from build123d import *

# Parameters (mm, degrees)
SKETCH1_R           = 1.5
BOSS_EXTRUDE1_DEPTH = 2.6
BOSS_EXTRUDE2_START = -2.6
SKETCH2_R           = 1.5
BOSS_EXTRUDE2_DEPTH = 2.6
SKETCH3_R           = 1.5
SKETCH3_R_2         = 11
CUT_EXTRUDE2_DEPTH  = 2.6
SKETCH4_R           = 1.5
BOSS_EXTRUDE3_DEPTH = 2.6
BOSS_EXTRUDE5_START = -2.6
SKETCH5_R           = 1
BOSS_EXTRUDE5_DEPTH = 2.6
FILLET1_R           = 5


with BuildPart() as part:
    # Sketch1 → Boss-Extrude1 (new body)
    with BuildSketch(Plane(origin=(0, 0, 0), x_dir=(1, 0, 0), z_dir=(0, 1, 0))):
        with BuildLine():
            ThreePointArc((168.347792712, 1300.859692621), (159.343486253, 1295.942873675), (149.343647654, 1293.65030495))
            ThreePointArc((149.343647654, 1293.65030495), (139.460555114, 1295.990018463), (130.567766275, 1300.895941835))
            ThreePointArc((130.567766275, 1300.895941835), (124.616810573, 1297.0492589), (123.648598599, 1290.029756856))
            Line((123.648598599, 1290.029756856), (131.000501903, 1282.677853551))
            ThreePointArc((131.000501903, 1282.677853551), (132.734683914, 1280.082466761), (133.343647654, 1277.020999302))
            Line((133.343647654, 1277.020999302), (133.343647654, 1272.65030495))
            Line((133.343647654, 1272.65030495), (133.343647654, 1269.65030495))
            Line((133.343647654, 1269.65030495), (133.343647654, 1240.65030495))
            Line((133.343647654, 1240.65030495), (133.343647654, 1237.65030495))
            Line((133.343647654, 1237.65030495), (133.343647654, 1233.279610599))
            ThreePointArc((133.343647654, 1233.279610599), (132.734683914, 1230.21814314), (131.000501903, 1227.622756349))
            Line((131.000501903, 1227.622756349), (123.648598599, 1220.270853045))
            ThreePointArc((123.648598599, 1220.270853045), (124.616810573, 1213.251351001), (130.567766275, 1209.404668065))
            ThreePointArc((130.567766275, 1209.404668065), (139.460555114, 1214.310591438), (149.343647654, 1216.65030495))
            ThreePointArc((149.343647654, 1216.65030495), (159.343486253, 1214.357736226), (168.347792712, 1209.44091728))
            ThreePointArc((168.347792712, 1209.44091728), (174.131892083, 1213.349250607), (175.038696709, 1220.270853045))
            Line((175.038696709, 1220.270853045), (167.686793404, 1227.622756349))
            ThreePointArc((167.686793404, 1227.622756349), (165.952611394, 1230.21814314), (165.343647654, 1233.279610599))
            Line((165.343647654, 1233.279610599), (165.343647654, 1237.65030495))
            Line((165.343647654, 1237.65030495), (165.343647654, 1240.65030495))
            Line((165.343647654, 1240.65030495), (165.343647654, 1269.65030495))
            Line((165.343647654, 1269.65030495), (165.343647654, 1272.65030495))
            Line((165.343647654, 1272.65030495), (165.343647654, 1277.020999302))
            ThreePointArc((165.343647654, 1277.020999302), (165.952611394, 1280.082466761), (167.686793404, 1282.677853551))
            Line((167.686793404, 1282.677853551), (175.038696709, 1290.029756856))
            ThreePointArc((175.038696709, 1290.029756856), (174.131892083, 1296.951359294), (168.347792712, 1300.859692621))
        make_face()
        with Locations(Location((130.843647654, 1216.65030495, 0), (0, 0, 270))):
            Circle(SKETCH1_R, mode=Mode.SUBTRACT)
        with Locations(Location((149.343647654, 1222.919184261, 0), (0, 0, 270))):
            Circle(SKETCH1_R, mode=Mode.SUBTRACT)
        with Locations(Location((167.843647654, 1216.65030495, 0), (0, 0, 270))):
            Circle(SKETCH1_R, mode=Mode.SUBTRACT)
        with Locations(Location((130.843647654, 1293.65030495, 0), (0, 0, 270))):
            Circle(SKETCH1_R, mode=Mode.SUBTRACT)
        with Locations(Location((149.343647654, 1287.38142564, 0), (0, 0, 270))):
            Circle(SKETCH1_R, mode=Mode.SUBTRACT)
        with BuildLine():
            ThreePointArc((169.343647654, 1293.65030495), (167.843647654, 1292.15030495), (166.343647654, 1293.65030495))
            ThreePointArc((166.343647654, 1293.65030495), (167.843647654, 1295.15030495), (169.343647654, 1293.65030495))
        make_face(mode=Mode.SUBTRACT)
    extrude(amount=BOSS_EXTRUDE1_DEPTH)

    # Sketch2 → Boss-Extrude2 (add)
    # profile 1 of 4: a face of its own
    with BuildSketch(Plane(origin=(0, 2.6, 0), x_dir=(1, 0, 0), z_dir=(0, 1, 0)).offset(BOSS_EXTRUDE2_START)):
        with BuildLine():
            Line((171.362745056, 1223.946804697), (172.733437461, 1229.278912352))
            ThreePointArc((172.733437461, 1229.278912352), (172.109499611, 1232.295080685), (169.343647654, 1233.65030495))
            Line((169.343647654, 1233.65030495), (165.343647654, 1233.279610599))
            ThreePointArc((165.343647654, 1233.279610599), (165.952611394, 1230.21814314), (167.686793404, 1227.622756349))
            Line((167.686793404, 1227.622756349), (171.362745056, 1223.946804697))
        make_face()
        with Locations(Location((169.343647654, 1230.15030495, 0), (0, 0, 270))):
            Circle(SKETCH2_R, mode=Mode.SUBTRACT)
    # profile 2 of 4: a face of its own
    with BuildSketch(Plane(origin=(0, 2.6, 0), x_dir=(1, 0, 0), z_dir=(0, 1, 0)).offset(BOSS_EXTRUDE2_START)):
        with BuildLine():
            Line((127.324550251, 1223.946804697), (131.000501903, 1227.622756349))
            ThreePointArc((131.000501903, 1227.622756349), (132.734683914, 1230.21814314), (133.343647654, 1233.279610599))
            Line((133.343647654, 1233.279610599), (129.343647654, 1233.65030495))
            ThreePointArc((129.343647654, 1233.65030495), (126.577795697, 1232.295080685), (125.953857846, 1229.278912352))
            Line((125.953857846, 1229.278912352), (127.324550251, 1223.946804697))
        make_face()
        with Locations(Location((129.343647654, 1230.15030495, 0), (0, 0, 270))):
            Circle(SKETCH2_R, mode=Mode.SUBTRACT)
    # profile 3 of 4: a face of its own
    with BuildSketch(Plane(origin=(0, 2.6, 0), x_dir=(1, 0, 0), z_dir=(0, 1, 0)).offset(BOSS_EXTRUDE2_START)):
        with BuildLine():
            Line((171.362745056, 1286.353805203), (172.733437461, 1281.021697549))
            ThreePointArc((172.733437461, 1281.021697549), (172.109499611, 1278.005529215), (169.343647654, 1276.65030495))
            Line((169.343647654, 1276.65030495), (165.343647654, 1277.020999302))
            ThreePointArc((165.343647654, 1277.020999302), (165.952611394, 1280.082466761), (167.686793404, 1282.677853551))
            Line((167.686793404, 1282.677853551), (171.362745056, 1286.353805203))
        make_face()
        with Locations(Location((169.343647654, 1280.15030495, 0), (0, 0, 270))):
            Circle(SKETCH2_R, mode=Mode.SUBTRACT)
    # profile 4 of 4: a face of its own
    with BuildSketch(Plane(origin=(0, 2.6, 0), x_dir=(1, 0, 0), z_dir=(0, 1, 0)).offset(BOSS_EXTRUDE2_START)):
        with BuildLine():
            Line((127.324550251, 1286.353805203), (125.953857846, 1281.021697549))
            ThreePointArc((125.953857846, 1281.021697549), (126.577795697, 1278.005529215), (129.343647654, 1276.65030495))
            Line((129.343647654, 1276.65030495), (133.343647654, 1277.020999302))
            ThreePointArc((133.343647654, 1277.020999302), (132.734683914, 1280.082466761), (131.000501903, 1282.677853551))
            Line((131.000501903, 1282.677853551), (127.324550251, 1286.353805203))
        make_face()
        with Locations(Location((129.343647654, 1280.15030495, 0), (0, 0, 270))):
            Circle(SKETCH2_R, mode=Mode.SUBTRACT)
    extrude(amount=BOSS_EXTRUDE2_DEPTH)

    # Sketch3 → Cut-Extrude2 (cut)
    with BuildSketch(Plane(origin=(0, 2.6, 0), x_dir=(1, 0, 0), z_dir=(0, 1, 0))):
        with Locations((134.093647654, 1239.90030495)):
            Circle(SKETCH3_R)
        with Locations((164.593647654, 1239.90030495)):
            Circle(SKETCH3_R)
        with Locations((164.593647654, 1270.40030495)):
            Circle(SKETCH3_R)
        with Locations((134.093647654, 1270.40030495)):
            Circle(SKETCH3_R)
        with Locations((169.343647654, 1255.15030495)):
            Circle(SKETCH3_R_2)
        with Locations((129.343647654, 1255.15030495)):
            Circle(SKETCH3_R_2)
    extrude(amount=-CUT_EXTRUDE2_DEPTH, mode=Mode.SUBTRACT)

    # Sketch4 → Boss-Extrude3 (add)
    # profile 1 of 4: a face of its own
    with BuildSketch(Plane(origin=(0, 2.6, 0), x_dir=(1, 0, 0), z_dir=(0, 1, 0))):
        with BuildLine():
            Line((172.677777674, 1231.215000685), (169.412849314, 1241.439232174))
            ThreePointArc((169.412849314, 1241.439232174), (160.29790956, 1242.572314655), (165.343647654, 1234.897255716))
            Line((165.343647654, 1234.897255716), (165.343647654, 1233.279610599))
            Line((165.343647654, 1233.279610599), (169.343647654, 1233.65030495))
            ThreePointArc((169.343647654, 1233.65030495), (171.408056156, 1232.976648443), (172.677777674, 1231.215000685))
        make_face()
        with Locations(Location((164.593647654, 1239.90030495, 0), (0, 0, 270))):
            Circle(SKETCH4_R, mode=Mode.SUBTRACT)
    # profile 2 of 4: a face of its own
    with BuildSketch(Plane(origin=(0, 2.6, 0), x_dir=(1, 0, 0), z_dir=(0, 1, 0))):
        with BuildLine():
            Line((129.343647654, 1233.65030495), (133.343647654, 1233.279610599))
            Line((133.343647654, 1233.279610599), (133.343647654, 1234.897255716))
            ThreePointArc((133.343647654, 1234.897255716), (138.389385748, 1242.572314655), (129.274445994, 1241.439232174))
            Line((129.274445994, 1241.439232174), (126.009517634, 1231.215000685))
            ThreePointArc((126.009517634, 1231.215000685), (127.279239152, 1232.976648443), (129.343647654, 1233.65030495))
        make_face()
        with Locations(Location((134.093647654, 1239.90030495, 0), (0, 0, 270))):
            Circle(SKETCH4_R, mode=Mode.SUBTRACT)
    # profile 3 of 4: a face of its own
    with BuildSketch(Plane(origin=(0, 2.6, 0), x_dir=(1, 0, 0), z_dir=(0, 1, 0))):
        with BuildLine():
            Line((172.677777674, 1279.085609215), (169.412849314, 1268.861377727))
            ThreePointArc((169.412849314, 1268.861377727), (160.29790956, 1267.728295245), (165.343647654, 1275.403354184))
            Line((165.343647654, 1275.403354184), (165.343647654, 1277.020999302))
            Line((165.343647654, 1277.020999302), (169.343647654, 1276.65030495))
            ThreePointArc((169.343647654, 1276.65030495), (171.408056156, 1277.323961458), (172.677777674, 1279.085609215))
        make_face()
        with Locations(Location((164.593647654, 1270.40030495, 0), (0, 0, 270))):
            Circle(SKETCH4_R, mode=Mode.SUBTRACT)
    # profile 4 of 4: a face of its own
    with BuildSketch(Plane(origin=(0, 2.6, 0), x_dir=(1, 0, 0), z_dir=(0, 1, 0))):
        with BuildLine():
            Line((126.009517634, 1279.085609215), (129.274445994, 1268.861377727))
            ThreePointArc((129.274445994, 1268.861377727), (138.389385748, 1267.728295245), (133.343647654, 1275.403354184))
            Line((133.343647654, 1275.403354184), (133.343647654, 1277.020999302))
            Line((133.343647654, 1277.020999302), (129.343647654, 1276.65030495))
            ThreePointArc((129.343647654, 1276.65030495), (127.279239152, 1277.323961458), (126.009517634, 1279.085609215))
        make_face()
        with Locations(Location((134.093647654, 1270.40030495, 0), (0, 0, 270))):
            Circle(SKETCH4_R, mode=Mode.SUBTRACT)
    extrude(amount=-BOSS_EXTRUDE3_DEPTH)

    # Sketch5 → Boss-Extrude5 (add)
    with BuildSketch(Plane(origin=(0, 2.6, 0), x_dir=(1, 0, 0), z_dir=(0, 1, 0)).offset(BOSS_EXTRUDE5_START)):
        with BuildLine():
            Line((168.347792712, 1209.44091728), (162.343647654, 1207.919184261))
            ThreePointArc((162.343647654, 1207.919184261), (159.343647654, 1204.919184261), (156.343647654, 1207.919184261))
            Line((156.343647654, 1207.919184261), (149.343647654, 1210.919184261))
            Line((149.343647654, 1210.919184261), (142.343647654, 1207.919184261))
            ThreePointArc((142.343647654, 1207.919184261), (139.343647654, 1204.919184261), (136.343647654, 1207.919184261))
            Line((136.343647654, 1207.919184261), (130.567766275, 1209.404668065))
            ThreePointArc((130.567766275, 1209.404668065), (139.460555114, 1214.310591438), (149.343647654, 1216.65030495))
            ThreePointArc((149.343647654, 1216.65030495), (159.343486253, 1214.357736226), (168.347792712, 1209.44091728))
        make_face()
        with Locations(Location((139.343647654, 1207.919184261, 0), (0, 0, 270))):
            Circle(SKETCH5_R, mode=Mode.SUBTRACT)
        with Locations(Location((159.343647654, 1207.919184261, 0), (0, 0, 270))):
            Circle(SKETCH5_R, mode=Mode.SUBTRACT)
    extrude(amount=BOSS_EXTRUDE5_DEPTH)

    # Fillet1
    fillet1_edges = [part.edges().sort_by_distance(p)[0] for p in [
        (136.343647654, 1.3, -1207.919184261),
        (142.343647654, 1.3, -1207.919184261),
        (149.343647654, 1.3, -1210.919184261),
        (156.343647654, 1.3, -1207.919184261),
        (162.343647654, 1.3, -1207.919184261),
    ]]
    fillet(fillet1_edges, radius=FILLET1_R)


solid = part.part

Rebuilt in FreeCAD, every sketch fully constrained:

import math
import FreeCAD as App
import Part
import Sketcher

V = App.Vector


def edges_at(feature, points):
    """Names of the edges that pass closest to the given points."""
    edges = feature.Shape.Edges
    near = lambda p: min(range(len(edges)), key=lambda i: edges[i].distToShape(Part.Vertex(*p))[0])
    return sorted({f"Edge{near(p) + 1}" for p in points})

doc = App.newDocument("Part")
body = doc.addObject("PartDesign::Body", "Body")

sketch1 = body.newObject("Sketcher::SketchObject", "Sketch")
sketch1.AttachmentSupport = (doc.getObject("XZ_Plane"), [""])
sketch1.MapMode = "FlatFace"
sketch1.addGeometry([
    Part.ArcOfCircle(Part.Circle(V(146, -1331, 0), V(0, 0, 1), 37.5), math.radians(54), math.radians(85)),
    Part.ArcOfCircle(Part.Circle(V(153, -1331, 0), V(0, 0, 1), 37.5), math.radians(96), math.radians(127)),
    Part.ArcOfCircle(Part.Circle(V(131.8, -1292.5, 0), V(0, 0, 1), 8.5), math.radians(163), math.radians(262)),
    Part.LineSegment(V(123.6, -1290, 0), V(131, -1282.7, 0)),
    Part.ArcOfCircle(Part.Circle(V(125.3, -1277, 0), V(0, 0, 1), 8), math.radians(-45), math.radians(0)),
    Part.LineSegment(V(133.3, -1277, 0), V(133.3, -1233.3, 0)),
    Part.ArcOfCircle(Part.Circle(V(125.3, -1233.3, 0), V(0, 0, 1), 8), math.radians(0), math.radians(45)),
    Part.LineSegment(V(131, -1227.6, 0), V(123.6, -1220.3, 0)),
    Part.ArcOfCircle(Part.Circle(V(131.8, -1217.8, 0), V(0, 0, 1), 8.5), math.radians(98), math.radians(197)),
    Part.ArcOfCircle(Part.Circle(V(153, -1179.3, 0), V(0, 0, 1), 37.5), math.radians(-127), math.radians(-96)),
    Part.ArcOfCircle(Part.Circle(V(146, -1179.3, 0), V(0, 0, 1), 37.5), math.radians(-85), math.radians(-54)),
    Part.ArcOfCircle(Part.Circle(V(166.9, -1217.8, 0), V(0, 0, 1), 8.5), math.radians(-17), math.radians(80)),
    Part.LineSegment(V(175, -1220.3, 0), V(167.7, -1227.6, 0)),
    Part.ArcOfCircle(Part.Circle(V(173.3, -1233.3, 0), V(0, 0, 1), 8), math.radians(135), math.radians(180)),
    Part.LineSegment(V(165.3, -1233.3, 0), V(165.3, -1277, 0)),
    Part.ArcOfCircle(Part.Circle(V(173.3, -1277, 0), V(0, 0, 1), 8), math.radians(180), math.radians(225)),
    Part.LineSegment(V(167.7, -1282.7, 0), V(175, -1290, 0)),
    Part.ArcOfCircle(Part.Circle(V(166.9, -1292.5, 0), V(0, 0, 1), 8.5), math.radians(-80), math.radians(17)),
    Part.Circle(V(130.8, -1216.7, 0), V(0, 0, 1), 1.5),
    Part.Circle(V(149.3, -1222.9, 0), V(0, 0, 1), 1.5),
    Part.Circle(V(167.8, -1216.7, 0), V(0, 0, 1), 1.5),
    Part.Circle(V(130.8, -1293.7, 0), V(0, 0, 1), 1.5),
    Part.Circle(V(149.3, -1287.4, 0), V(0, 0, 1), 1.5),
    Part.Circle(V(167.8, -1293.7, 0), V(0, 0, 1), 1.5),
], False)
sketch1.addConstraint([
    Sketcher.Constraint("Coincident", 0, 2, 1, 1),
    Sketcher.Constraint("Coincident", 1, 2, 2, 2),
    Sketcher.Constraint("Coincident", 2, 1, 3, 1),
    Sketcher.Constraint("Tangent", 3, 2, 4, 1),
    Sketcher.Constraint("Tangent", 4, 2, 5, 1),
    Sketcher.Constraint("Tangent", 5, 2, 6, 1),
    Sketcher.Constraint("Tangent", 6, 2, 7, 1),
    Sketcher.Constraint("Coincident", 7, 2, 8, 2),
    Sketcher.Constraint("Coincident", 8, 1, 9, 1),
    Sketcher.Constraint("Coincident", 9, 2, 10, 1),
    Sketcher.Constraint("Coincident", 10, 2, 11, 2),
    Sketcher.Constraint("Coincident", 11, 1, 12, 1),
    Sketcher.Constraint("Tangent", 12, 2, 13, 1),
    Sketcher.Constraint("Tangent", 13, 2, 14, 1),
    Sketcher.Constraint("Tangent", 14, 2, 15, 1),
    Sketcher.Constraint("Tangent", 15, 2, 16, 1),
    Sketcher.Constraint("Coincident", 16, 2, 17, 2),
    Sketcher.Constraint("Coincident", 17, 1, 0, 1),
    Sketcher.Constraint("Vertical", 5),
    Sketcher.Constraint("Vertical", 14),
    Sketcher.Constraint("Equal", 0, 1),
    Sketcher.Constraint("Equal", 4, 6),
    Sketcher.Constraint("Equal", 2, 8),
    Sketcher.Constraint("Equal", 1, 9),
    Sketcher.Constraint("Equal", 9, 10),
    Sketcher.Constraint("Equal", 8, 11),
    Sketcher.Constraint("Equal", 6, 13),
    Sketcher.Constraint("Equal", 13, 15),
    Sketcher.Constraint("Equal", 11, 17),
    Sketcher.Constraint("Equal", 18, 19),
    Sketcher.Constraint("Equal", 19, 20),
    Sketcher.Constraint("Equal", 20, 21),
    Sketcher.Constraint("Equal", 21, 22),
    Sketcher.Constraint("Equal", 22, 23),
    Sketcher.Constraint("Perpendicular", 3, 7),
    Sketcher.Constraint("Perpendicular", 7, 12),
    Sketcher.Constraint("Perpendicular", 12, 16),
    Sketcher.Constraint("Horizontal", 8, 3, 11, 3),
    Sketcher.Constraint("Horizontal", 6, 3, 13, 3),
    Sketcher.Constraint("Horizontal", 4, 3, 15, 3),
    Sketcher.Constraint("Horizontal", 2, 3, 17, 3),
    Sketcher.Constraint("Horizontal", 18, 3, 20, 3),
    Sketcher.Constraint("Horizontal", 21, 3, 23, 3),
    Sketcher.Constraint("Horizontal", 23, 3, 0, 2),
    Sketcher.Constraint("Horizontal", 20, 3, 9, 2),
    Sketcher.Constraint("Horizontal", 7, 2, 11, 1),
    Sketcher.Constraint("Horizontal", 6, 2, 12, 2),
    Sketcher.Constraint("Horizontal", 2, 1, 16, 2),
    Sketcher.Constraint("Vertical", 2, 3, 8, 3),
    Sketcher.Constraint("Vertical", 1, 3, 9, 3),
    Sketcher.Constraint("Vertical", 0, 3, 10, 3),
    Sketcher.Constraint("Vertical", 18, 3, 21, 3),
    Sketcher.Constraint("Vertical", 19, 3, 22, 3),
    Sketcher.Constraint("Vertical", 20, 3, 23, 3),
    Sketcher.Constraint("Vertical", 22, 3, 0, 2),
    Sketcher.Constraint("Vertical", 2, 1, 7, 2),
    Sketcher.Constraint("Vertical", 1, 2, 8, 1),
    Sketcher.Constraint("Vertical", 0, 2, 9, 2),
    Sketcher.Constraint("Diameter", 18, 3.0),
    Sketcher.Constraint("Radius", 4, 8.0),
    Sketcher.Constraint("Radius", 0, 37.5),
    Sketcher.Constraint("Radius", 2, 8.5),
    Sketcher.Constraint("DistanceX", 6, 3, 13, 3, 48.0),
    Sketcher.Constraint("DistanceX", 6, 3, 19, 3, 24.0),
    Sketcher.Constraint("DistanceX", 18, 3, 20, 3, 37.0),
    Sketcher.Constraint("DistanceX", 6, 3, 18, 3, 5.5),
    Sketcher.Constraint("DistanceY", 4, 3, -1, 1, 1277.020999),
    Sketcher.Constraint("DistanceX", 12, 2, 10, 2, 0.660999),
    Sketcher.Constraint("DistanceY", 5, 1, 5, 2, 43.741389),
    Sketcher.Constraint("DistanceX", -1, 1, 2, 1, 123.648599),
    Sketcher.Constraint("DistanceX", -1, 1, 3, 2, 131.000502),
    Sketcher.Constraint("DistanceX", 9, 3, 11, 3, 13.939202),
    Sketcher.Constraint("DistanceX", -1, 1, 0, 3, 146.04247),
    Sketcher.Constraint("DistanceY", 0, 3, -1, 1, 1331.004719),
    Sketcher.Constraint("DistanceY", 19, 3, 8, 3, 5.102362),
    Sketcher.Constraint("DistanceY", 2, 3, 22, 3, 5.102362),
])
pad1 = body.newObject("PartDesign::Pad", "Pad")
pad1.Profile = sketch1
pad1.Length = 2.6
pad1.Reversed = True

sketch2 = body.newObject("Sketcher::SketchObject", "Sketch001")
sketch2.AttachmentSupport = (doc.getObject("XZ_Plane"), [""])
sketch2.MapMode = "FlatFace"
sketch2.addGeometry([
    Part.LineSegment(V(171.4, -1223.9, 0), V(172.7, -1229.3, 0)),
    Part.ArcOfCircle(Part.Circle(V(169.3, -1230.2, 0), V(0, 0, 1), 3.5), math.radians(-90), math.radians(14)),
    Part.LineSegment(V(169.3, -1233.7, 0), V(165.3, -1233.3, 0)),
    Part.ArcOfCircle(Part.Circle(V(173.3, -1233.3, 0), V(0, 0, 1), 8), math.radians(135), math.radians(180)),
    Part.LineSegment(V(167.7, -1227.6, 0), V(171.4, -1223.9, 0)),
    Part.Circle(V(169.3, -1230.2, 0), V(0, 0, 1), 1.5),
    Part.LineSegment(V(127.3, -1223.9, 0), V(131, -1227.6, 0)),
    Part.ArcOfCircle(Part.Circle(V(125.3, -1233.3, 0), V(0, 0, 1), 8), math.radians(0), math.radians(45)),
    Part.LineSegment(V(133.3, -1233.3, 0), V(129.3, -1233.7, 0)),
    Part.ArcOfCircle(Part.Circle(V(129.3, -1230.2, 0), V(0, 0, 1), 3.5), math.radians(166), math.radians(270)),
    Part.LineSegment(V(126, -1229.3, 0), V(127.3, -1223.9, 0)),
    Part.Circle(V(129.3, -1230.2, 0), V(0, 0, 1), 1.5),
    Part.LineSegment(V(172.7, -1281, 0), V(171.4, -1286.4, 0)),
    Part.LineSegment(V(171.4, -1286.4, 0), V(167.7, -1282.7, 0)),
    Part.ArcOfCircle(Part.Circle(V(173.3, -1277, 0), V(0, 0, 1), 8), math.radians(180), math.radians(225)),
    Part.LineSegment(V(165.3, -1277, 0), V(169.3, -1276.7, 0)),
    Part.ArcOfCircle(Part.Circle(V(169.3, -1280.2, 0), V(0, 0, 1), 3.5), math.radians(-14), math.radians(90)),
    Part.Circle(V(169.3, -1280.2, 0), V(0, 0, 1), 1.5),
    Part.LineSegment(V(127.3, -1286.4, 0), V(126, -1281, 0)),
    Part.ArcOfCircle(Part.Circle(V(129.3, -1280.2, 0), V(0, 0, 1), 3.5), math.radians(90), math.radians(194)),
    Part.LineSegment(V(129.3, -1276.7, 0), V(133.3, -1277, 0)),
    Part.ArcOfCircle(Part.Circle(V(125.3, -1277, 0), V(0, 0, 1), 8), math.radians(-45), math.radians(0)),
    Part.LineSegment(V(131, -1282.7, 0), V(127.3, -1286.4, 0)),
    Part.Circle(V(129.3, -1280.2, 0), V(0, 0, 1), 1.5),
], False)
sketch2.addConstraint([
    Sketcher.Constraint("Tangent", 0, 2, 1, 2),
    Sketcher.Constraint("Coincident", 1, 1, 2, 1),
    Sketcher.Constraint("Coincident", 2, 2, 3, 2),
    Sketcher.Constraint("Tangent", 3, 1, 4, 1),
    Sketcher.Constraint("Coincident", 4, 2, 0, 1),
    Sketcher.Constraint("Tangent", 6, 2, 7, 2),
    Sketcher.Constraint("Coincident", 7, 1, 8, 1),
    Sketcher.Constraint("Coincident", 8, 2, 9, 2),
    Sketcher.Constraint("Tangent", 9, 1, 10, 1),
    Sketcher.Constraint("Coincident", 10, 2, 6, 1),
    Sketcher.Constraint("Coincident", 12, 2, 13, 1),
    Sketcher.Constraint("Tangent", 13, 2, 14, 2),
    Sketcher.Constraint("Coincident", 14, 1, 15, 1),
    Sketcher.Constraint("Coincident", 15, 2, 16, 2),
    Sketcher.Constraint("Tangent", 16, 1, 12, 1),
    Sketcher.Constraint("Tangent", 18, 2, 19, 2),
    Sketcher.Constraint("Coincident", 19, 1, 20, 1),
    Sketcher.Constraint("Coincident", 20, 2, 21, 2),
    Sketcher.Constraint("Tangent", 21, 1, 22, 1),
    Sketcher.Constraint("Coincident", 22, 2, 18, 1),
    Sketcher.Constraint("Coincident", 5, 3, 1, 3),
    Sketcher.Constraint("Coincident", 11, 3, 9, 3),
    Sketcher.Constraint("Coincident", 17, 3, 16, 3),
    Sketcher.Constraint("Coincident", 23, 3, 19, 3),
    Sketcher.Constraint("Equal", 3, 7),
    Sketcher.Constraint("Equal", 1, 9),
    Sketcher.Constraint("Equal", 5, 11),
    Sketcher.Constraint("Equal", 7, 14),
    Sketcher.Constraint("Equal", 9, 16),
    Sketcher.Constraint("Equal", 11, 17),
    Sketcher.Constraint("Equal", 16, 19),
    Sketcher.Constraint("Equal", 14, 21),
    Sketcher.Constraint("Equal", 17, 23),
    Sketcher.Constraint("Perpendicular", 4, 6),
    Sketcher.Constraint("Parallel", 10, 12),
    Sketcher.Constraint("Parallel", 6, 13),
    Sketcher.Constraint("Parallel", 8, 15),
    Sketcher.Constraint("Parallel", 0, 18),
    Sketcher.Constraint("Parallel", 2, 20),
    Sketcher.Constraint("Perpendicular", 13, 22),
    Sketcher.Constraint("Horizontal", 3, 3, 7, 3),
    Sketcher.Constraint("Horizontal", 5, 3, 9, 3),
    Sketcher.Constraint("Horizontal", 17, 3, 19, 3),
    Sketcher.Constraint("Horizontal", 14, 3, 21, 3),
    Sketcher.Constraint("Horizontal", 7, 3, 2, 2),
    Sketcher.Constraint("Horizontal", 3, 1, 6, 2),
    Sketcher.Constraint("Horizontal", 2, 2, 7, 1),
    Sketcher.Constraint("Horizontal", 0, 2, 9, 1),
    Sketcher.Constraint("Horizontal", 4, 2, 10, 2),
    Sketcher.Constraint("Horizontal", 21, 3, 14, 1),
    Sketcher.Constraint("Horizontal", 14, 1, 20, 2),
    Sketcher.Constraint("Horizontal", 12, 2, 22, 2),
    Sketcher.Constraint("Vertical", 3, 3, 14, 3),
    Sketcher.Constraint("Vertical", 5, 3, 16, 3),
    Sketcher.Constraint("Vertical", 11, 3, 19, 3),
    Sketcher.Constraint("Vertical", 17, 3, 1, 1),
    Sketcher.Constraint("Vertical", 23, 3, 8, 2),
    Sketcher.Constraint("Vertical", 4, 2, 12, 2),
    Sketcher.Constraint("Diameter", 5, 3.0),
    Sketcher.Constraint("Radius", 3, 8.0),
    Sketcher.Constraint("Radius", 1, 3.5),
    Sketcher.Constraint("DistanceX", 1, 3, 3, 3, 4.0),
    Sketcher.Constraint("DistanceX", 7, 3, 5, 3, 44.0),
    Sketcher.Constraint("DistanceY", 16, 3, 1, 3, 50.0),
    Sketcher.Constraint("DistanceY", 14, 3, -1, 1, 1277.020999),
    Sketcher.Constraint("DistanceX", -1, 1, 6, 2, 131.000502),
    Sketcher.Constraint("DistanceY", 3, 3, 0, 2, 4.000698),
    Sketcher.Constraint("DistanceY", 5, 3, 4, 2, 6.2035),
])
pad2 = body.newObject("PartDesign::Pad", "Pad001")
pad2.Profile = sketch2
pad2.Length = 2.6
pad2.Reversed = True

sketch3 = body.newObject("Sketcher::SketchObject", "Sketch002")
sketch3.AttachmentSupport = (doc.getObject("XZ_Plane"), [""])
sketch3.MapMode = "FlatFace"
sketch3.AttachmentOffset = App.Placement(V(0, 0, -2.6), App.Rotation())
sketch3.addGeometry([
    Part.Circle(V(134.1, -1239.9, 0), V(0, 0, 1), 1.5),
    Part.Circle(V(164.6, -1239.9, 0), V(0, 0, 1), 1.5),
    Part.Circle(V(164.6, -1270.4, 0), V(0, 0, 1), 1.5),
    Part.Circle(V(134.1, -1270.4, 0), V(0, 0, 1), 1.5),
    Part.Circle(V(169.3, -1255.2, 0), V(0, 0, 1), 11),
    Part.Circle(V(129.3, -1255.2, 0), V(0, 0, 1), 11),
], False)
sketch3.addConstraint([
    Sketcher.Constraint("Equal", 0, 1),
    Sketcher.Constraint("Equal", 1, 2),
    Sketcher.Constraint("Equal", 2, 3),
    Sketcher.Constraint("Equal", 4, 5),
    Sketcher.Constraint("Horizontal", 0, 3, 1, 3),
    Sketcher.Constraint("Horizontal", 2, 3, 3, 3),
    Sketcher.Constraint("Horizontal", 4, 3, 5, 3),
    Sketcher.Constraint("Vertical", 1, 3, 2, 3),
    Sketcher.Constraint("Vertical", 0, 3, 3, 3),
    Sketcher.Constraint("Diameter", 0, 3.0),
    Sketcher.Constraint("Diameter", 4, 22.0),
    Sketcher.Constraint("DistanceX", 5, 3, 4, 3, 40.0),
    Sketcher.Constraint("DistanceX", 0, 3, 1, 3, 30.5),
    Sketcher.Constraint("DistanceY", 2, 3, 1, 3, 30.5),
    Sketcher.Constraint("DistanceX", 1, 3, 4, 3, 4.75),
    Sketcher.Constraint("DistanceY", 4, 3, 1, 3, 15.25),
    Sketcher.Constraint("DistanceX", -1, 1, 0, 3, 134.093648),
    Sketcher.Constraint("DistanceY", 0, 3, -1, 1, 1239.900305),
])
pocket1 = body.newObject("PartDesign::Pocket", "Pocket")
pocket1.Profile = sketch3
pocket1.Length = 2.6
pocket1.Reversed = True

sketch4 = body.newObject("Sketcher::SketchObject", "Sketch003")
sketch4.AttachmentSupport = (doc.getObject("XZ_Plane"), [""])
sketch4.MapMode = "FlatFace"
sketch4.AttachmentOffset = App.Placement(V(0, 0, -2.6), App.Rotation())
sketch4.addGeometry([
    Part.LineSegment(V(172.7, -1231.2, 0), V(169.4, -1241.4, 0)),
    Part.ArcOfCircle(Part.Circle(V(164.6, -1239.9, 0), V(0, 0, 1), 5.1), math.radians(81), math.radians(342)),
    Part.LineSegment(V(165.3, -1234.9, 0), V(165.3, -1233.3, 0)),
    Part.LineSegment(V(165.3, -1233.3, 0), V(169.3, -1233.7, 0)),
    Part.ArcOfCircle(Part.Circle(V(169.3, -1230.2, 0), V(0, 0, 1), 3.5), math.radians(-90), math.radians(-18)),
    Part.Circle(V(164.6, -1239.9, 0), V(0, 0, 1), 1.5),
    Part.LineSegment(V(129.3, -1233.7, 0), V(133.3, -1233.3, 0)),
    Part.LineSegment(V(133.3, -1233.3, 0), V(133.3, -1234.9, 0)),
    Part.ArcOfCircle(Part.Circle(V(134.1, -1239.9, 0), V(0, 0, 1), 5.1), math.radians(-162), math.radians(99)),
    Part.LineSegment(V(129.3, -1241.4, 0), V(126, -1231.2, 0)),
    Part.ArcOfCircle(Part.Circle(V(129.3, -1230.2, 0), V(0, 0, 1), 3.5), math.radians(-162), math.radians(-90)),
    Part.Circle(V(134.1, -1239.9, 0), V(0, 0, 1), 1.5),
    Part.LineSegment(V(169.4, -1268.9, 0), V(172.7, -1279.1, 0)),
    Part.ArcOfCircle(Part.Circle(V(169.3, -1280.2, 0), V(0, 0, 1), 3.5), math.radians(18), math.radians(90)),
    Part.LineSegment(V(169.3, -1276.7, 0), V(165.3, -1277, 0)),
    Part.LineSegment(V(165.3, -1277, 0), V(165.3, -1275.4, 0)),
    Part.ArcOfCircle(Part.Circle(V(164.6, -1270.4, 0), V(0, 0, 1), 5.1), math.radians(18), math.radians(279)),
    Part.Circle(V(164.6, -1270.4, 0), V(0, 0, 1), 1.5),
    Part.LineSegment(V(126, -1279.1, 0), V(129.3, -1268.9, 0)),
    Part.ArcOfCircle(Part.Circle(V(134.1, -1270.4, 0), V(0, 0, 1), 5.1), math.radians(-99), math.radians(162)),
    Part.LineSegment(V(133.3, -1275.4, 0), V(133.3, -1277, 0)),
    Part.LineSegment(V(133.3, -1277, 0), V(129.3, -1276.7, 0)),
    Part.ArcOfCircle(Part.Circle(V(129.3, -1280.2, 0), V(0, 0, 1), 3.5), math.radians(90), math.radians(162)),
    Part.Circle(V(134.1, -1270.4, 0), V(0, 0, 1), 1.5),
], False)
sketch4.addConstraint([
    Sketcher.Constraint("Tangent", 0, 2, 1, 2),
    Sketcher.Constraint("Coincident", 1, 1, 2, 1),
    Sketcher.Constraint("Coincident", 2, 2, 3, 1),
    Sketcher.Constraint("Coincident", 3, 2, 4, 1),
    Sketcher.Constraint("Tangent", 4, 2, 0, 1),
    Sketcher.Constraint("Coincident", 6, 2, 7, 1),
    Sketcher.Constraint("Coincident", 7, 2, 8, 2),
    Sketcher.Constraint("Tangent", 8, 1, 9, 1),
    Sketcher.Constraint("Tangent", 9, 2, 10, 1),
    Sketcher.Constraint("Coincident", 10, 2, 6, 1),
    Sketcher.Constraint("Tangent", 12, 2, 13, 1),
    Sketcher.Constraint("Coincident", 13, 2, 14, 1),
    Sketcher.Constraint("Coincident", 14, 2, 15, 1),
    Sketcher.Constraint("Coincident", 15, 2, 16, 2),
    Sketcher.Constraint("Tangent", 16, 1, 12, 1),
    Sketcher.Constraint("Tangent", 18, 2, 19, 2),
    Sketcher.Constraint("Coincident", 19, 1, 20, 1),
    Sketcher.Constraint("Coincident", 20, 2, 21, 1),
    Sketcher.Constraint("Coincident", 21, 2, 22, 1),
    Sketcher.Constraint("Tangent", 22, 2, 18, 1),
    Sketcher.Constraint("Vertical", 2),
    Sketcher.Constraint("Vertical", 7),
    Sketcher.Constraint("Vertical", 15),
    Sketcher.Constraint("Vertical", 20),
    Sketcher.Constraint("Coincident", 5, 3, 1, 3),
    Sketcher.Constraint("Coincident", 11, 3, 8, 3),
    Sketcher.Constraint("Coincident", 17, 3, 16, 3),
    Sketcher.Constraint("Coincident", 23, 3, 19, 3),
    Sketcher.Constraint("Equal", 1, 8),
    Sketcher.Constraint("Equal", 4, 10),
    Sketcher.Constraint("Equal", 5, 11),
    Sketcher.Constraint("Equal", 10, 13),
    Sketcher.Constraint("Equal", 8, 16),
    Sketcher.Constraint("Equal", 11, 17),
    Sketcher.Constraint("Equal", 16, 19),
    Sketcher.Constraint("Equal", 13, 22),
    Sketcher.Constraint("Equal", 17, 23),
    Sketcher.Constraint("Parallel", 9, 12),
    Sketcher.Constraint("Parallel", 6, 14),
    Sketcher.Constraint("Parallel", 0, 18),
    Sketcher.Constraint("Parallel", 3, 21),
    Sketcher.Constraint("Horizontal", 5, 3, 8, 3),
    Sketcher.Constraint("Horizontal", 4, 3, 10, 3),
    Sketcher.Constraint("Horizontal", 17, 3, 19, 3),
    Sketcher.Constraint("Horizontal", 13, 3, 22, 3),
    Sketcher.Constraint("Horizontal", 2, 2, 6, 2),
    Sketcher.Constraint("Horizontal", 1, 1, 7, 2),
    Sketcher.Constraint("Horizontal", 0, 2, 8, 1),
    Sketcher.Constraint("Horizontal", 15, 2, 19, 1),
    Sketcher.Constraint("Horizontal", 14, 2, 20, 2),
    Sketcher.Constraint("Vertical", 4, 3, 13, 3),
    Sketcher.Constraint("Vertical", 5, 3, 16, 3),
    Sketcher.Constraint("Vertical", 11, 3, 19, 3),
    Sketcher.Constraint("Vertical", 13, 3, 3, 2),
    Sketcher.Constraint("Vertical", 22, 3, 10, 2),
    Sketcher.Constraint("Vertical", 3, 2, 13, 2),
    Sketcher.Constraint("Vertical", 2, 2, 14, 2),
    Sketcher.Constraint("Diameter", 5, 3.0),
    Sketcher.Constraint("Radius", 4, 3.5),
    Sketcher.Constraint("DistanceX", 10, 3, 4, 3, 40.0),
    Sketcher.Constraint("DistanceY", 13, 3, 4, 3, 50.0),
    Sketcher.Constraint("DistanceX", 1, 1, 4, 3, 4.0),
    Sketcher.Constraint("DistanceX", 8, 3, 1, 3, 30.5),
    Sketcher.Constraint("DistanceY", 16, 3, 1, 3, 30.5),
    Sketcher.Constraint("DistanceY", 4, 2, -1, 1, 1231.215001),
    Sketcher.Constraint("DistanceY", 14, 2, -1, 1, 1277.020999),
    Sketcher.Constraint("Radius", 1, 5.058953),
    Sketcher.Constraint("DistanceX", -1, 1, 0, 2, 169.412849),
])
pad3 = body.newObject("PartDesign::Pad", "Pad002")
pad3.Profile = sketch4
pad3.Length = 2.6

sketch5 = body.newObject("Sketcher::SketchObject", "Sketch004")
sketch5.AttachmentSupport = (doc.getObject("XZ_Plane"), [""])
sketch5.MapMode = "FlatFace"
sketch5.addGeometry([
    Part.LineSegment(V(162.3, -1207.9, 0), V(168.3, -1209.4, 0)),
    Part.ArcOfCircle(Part.Circle(V(146, -1179.3, 0), V(0, 0, 1), 37.5), math.radians(-85), math.radians(-54)),
    Part.ArcOfCircle(Part.Circle(V(153, -1179.3, 0), V(0, 0, 1), 37.5), math.radians(-127), math.radians(-96)),
    Part.LineSegment(V(130.6, -1209.4, 0), V(136.3, -1207.9, 0)),
    Part.ArcOfCircle(Part.Circle(V(139.3, -1207.9, 0), V(0, 0, 1), 3), math.radians(0), math.radians(180)),
    Part.LineSegment(V(142.3, -1207.9, 0), V(149.3, -1210.9, 0)),
    Part.LineSegment(V(149.3, -1210.9, 0), V(156.3, -1207.9, 0)),
    Part.ArcOfCircle(Part.Circle(V(159.3, -1207.9, 0), V(0, 0, 1), 3), math.radians(0), math.radians(180)),
    Part.Circle(V(159.3, -1207.9, 0), V(0, 0, 1), 1),
    Part.Circle(V(139.3, -1207.9, 0), V(0, 0, 1), 1),
], False)
sketch5.addConstraint([
    Sketcher.Constraint("Coincident", 0, 2, 1, 2),
    Sketcher.Constraint("Coincident", 1, 1, 2, 2),
    Sketcher.Constraint("Coincident", 2, 1, 3, 1),
    Sketcher.Constraint("Coincident", 3, 2, 4, 2),
    Sketcher.Constraint("Coincident", 4, 1, 5, 1),
    Sketcher.Constraint("Coincident", 5, 2, 6, 1),
    Sketcher.Constraint("Coincident", 6, 2, 7, 2),
    Sketcher.Constraint("Coincident", 7, 1, 0, 1),
    Sketcher.Constraint("Coincident", 8, 3, 7, 3),
    Sketcher.Constraint("Coincident", 9, 3, 4, 3),
    Sketcher.Constraint("Equal", 1, 2),
    Sketcher.Constraint("Equal", 4, 7),
    Sketcher.Constraint("Equal", 8, 9),
    Sketcher.Constraint("Horizontal", 4, 3, 7, 3),
    Sketcher.Constraint("Horizontal", 9, 3, 3, 2),
    Sketcher.Constraint("Horizontal", 3, 2, 4, 1),
    Sketcher.Constraint("Horizontal", 4, 1, 6, 2),
    Sketcher.Constraint("Horizontal", 6, 2, 7, 1),
    Sketcher.Constraint("Vertical", 1, 1, 5, 2),
    Sketcher.Constraint("Equal", 5, 6),
    Sketcher.Constraint("Diameter", 8, 2.0),
    Sketcher.Constraint("Radius", 4, 3.0),
    Sketcher.Constraint("Radius", 1, 37.5),
    Sketcher.Constraint("DistanceX", 4, 3, 7, 3, 20.0),
    Sketcher.Constraint("DistanceY", 5, 2, 4, 1, 3.0),
    Sketcher.Constraint("DistanceX", -1, 1, 1, 3, 146.04247),
    Sketcher.Constraint("DistanceY", 1, 3, -1, 1, 1179.295891),
    Sketcher.Constraint("DistanceY", 2, 1, -1, 1, 1209.404668),
    Sketcher.Constraint("DistanceX", 2, 3, 0, 2, 15.38634),
    Sketcher.Constraint("DistanceY", 0, 2, 2, 3, 30.115691),
    Sketcher.Constraint("DistanceY", 1, 1, 4, 3, 8.731121),
    Sketcher.Constraint("DistanceX", 2, 1, 4, 3, 8.775881),
])
pad4 = body.newObject("PartDesign::Pad", "Pad003")
pad4.Profile = sketch5
pad4.Length = 2.6
pad4.Reversed = True
doc.recompute()

fillet = body.newObject("PartDesign::Fillet", "Fillet")
fillet.Base = (pad4, edges_at(pad4, [
    (136.344, 1.3, -1207.919),
    (142.344, 1.3, -1207.919),
    (149.344, 1.3, -1210.919),
    (156.344, 1.3, -1207.919),
    (162.344, 1.3, -1207.919),
]))
fillet.Radius = 5

doc.recompute()
